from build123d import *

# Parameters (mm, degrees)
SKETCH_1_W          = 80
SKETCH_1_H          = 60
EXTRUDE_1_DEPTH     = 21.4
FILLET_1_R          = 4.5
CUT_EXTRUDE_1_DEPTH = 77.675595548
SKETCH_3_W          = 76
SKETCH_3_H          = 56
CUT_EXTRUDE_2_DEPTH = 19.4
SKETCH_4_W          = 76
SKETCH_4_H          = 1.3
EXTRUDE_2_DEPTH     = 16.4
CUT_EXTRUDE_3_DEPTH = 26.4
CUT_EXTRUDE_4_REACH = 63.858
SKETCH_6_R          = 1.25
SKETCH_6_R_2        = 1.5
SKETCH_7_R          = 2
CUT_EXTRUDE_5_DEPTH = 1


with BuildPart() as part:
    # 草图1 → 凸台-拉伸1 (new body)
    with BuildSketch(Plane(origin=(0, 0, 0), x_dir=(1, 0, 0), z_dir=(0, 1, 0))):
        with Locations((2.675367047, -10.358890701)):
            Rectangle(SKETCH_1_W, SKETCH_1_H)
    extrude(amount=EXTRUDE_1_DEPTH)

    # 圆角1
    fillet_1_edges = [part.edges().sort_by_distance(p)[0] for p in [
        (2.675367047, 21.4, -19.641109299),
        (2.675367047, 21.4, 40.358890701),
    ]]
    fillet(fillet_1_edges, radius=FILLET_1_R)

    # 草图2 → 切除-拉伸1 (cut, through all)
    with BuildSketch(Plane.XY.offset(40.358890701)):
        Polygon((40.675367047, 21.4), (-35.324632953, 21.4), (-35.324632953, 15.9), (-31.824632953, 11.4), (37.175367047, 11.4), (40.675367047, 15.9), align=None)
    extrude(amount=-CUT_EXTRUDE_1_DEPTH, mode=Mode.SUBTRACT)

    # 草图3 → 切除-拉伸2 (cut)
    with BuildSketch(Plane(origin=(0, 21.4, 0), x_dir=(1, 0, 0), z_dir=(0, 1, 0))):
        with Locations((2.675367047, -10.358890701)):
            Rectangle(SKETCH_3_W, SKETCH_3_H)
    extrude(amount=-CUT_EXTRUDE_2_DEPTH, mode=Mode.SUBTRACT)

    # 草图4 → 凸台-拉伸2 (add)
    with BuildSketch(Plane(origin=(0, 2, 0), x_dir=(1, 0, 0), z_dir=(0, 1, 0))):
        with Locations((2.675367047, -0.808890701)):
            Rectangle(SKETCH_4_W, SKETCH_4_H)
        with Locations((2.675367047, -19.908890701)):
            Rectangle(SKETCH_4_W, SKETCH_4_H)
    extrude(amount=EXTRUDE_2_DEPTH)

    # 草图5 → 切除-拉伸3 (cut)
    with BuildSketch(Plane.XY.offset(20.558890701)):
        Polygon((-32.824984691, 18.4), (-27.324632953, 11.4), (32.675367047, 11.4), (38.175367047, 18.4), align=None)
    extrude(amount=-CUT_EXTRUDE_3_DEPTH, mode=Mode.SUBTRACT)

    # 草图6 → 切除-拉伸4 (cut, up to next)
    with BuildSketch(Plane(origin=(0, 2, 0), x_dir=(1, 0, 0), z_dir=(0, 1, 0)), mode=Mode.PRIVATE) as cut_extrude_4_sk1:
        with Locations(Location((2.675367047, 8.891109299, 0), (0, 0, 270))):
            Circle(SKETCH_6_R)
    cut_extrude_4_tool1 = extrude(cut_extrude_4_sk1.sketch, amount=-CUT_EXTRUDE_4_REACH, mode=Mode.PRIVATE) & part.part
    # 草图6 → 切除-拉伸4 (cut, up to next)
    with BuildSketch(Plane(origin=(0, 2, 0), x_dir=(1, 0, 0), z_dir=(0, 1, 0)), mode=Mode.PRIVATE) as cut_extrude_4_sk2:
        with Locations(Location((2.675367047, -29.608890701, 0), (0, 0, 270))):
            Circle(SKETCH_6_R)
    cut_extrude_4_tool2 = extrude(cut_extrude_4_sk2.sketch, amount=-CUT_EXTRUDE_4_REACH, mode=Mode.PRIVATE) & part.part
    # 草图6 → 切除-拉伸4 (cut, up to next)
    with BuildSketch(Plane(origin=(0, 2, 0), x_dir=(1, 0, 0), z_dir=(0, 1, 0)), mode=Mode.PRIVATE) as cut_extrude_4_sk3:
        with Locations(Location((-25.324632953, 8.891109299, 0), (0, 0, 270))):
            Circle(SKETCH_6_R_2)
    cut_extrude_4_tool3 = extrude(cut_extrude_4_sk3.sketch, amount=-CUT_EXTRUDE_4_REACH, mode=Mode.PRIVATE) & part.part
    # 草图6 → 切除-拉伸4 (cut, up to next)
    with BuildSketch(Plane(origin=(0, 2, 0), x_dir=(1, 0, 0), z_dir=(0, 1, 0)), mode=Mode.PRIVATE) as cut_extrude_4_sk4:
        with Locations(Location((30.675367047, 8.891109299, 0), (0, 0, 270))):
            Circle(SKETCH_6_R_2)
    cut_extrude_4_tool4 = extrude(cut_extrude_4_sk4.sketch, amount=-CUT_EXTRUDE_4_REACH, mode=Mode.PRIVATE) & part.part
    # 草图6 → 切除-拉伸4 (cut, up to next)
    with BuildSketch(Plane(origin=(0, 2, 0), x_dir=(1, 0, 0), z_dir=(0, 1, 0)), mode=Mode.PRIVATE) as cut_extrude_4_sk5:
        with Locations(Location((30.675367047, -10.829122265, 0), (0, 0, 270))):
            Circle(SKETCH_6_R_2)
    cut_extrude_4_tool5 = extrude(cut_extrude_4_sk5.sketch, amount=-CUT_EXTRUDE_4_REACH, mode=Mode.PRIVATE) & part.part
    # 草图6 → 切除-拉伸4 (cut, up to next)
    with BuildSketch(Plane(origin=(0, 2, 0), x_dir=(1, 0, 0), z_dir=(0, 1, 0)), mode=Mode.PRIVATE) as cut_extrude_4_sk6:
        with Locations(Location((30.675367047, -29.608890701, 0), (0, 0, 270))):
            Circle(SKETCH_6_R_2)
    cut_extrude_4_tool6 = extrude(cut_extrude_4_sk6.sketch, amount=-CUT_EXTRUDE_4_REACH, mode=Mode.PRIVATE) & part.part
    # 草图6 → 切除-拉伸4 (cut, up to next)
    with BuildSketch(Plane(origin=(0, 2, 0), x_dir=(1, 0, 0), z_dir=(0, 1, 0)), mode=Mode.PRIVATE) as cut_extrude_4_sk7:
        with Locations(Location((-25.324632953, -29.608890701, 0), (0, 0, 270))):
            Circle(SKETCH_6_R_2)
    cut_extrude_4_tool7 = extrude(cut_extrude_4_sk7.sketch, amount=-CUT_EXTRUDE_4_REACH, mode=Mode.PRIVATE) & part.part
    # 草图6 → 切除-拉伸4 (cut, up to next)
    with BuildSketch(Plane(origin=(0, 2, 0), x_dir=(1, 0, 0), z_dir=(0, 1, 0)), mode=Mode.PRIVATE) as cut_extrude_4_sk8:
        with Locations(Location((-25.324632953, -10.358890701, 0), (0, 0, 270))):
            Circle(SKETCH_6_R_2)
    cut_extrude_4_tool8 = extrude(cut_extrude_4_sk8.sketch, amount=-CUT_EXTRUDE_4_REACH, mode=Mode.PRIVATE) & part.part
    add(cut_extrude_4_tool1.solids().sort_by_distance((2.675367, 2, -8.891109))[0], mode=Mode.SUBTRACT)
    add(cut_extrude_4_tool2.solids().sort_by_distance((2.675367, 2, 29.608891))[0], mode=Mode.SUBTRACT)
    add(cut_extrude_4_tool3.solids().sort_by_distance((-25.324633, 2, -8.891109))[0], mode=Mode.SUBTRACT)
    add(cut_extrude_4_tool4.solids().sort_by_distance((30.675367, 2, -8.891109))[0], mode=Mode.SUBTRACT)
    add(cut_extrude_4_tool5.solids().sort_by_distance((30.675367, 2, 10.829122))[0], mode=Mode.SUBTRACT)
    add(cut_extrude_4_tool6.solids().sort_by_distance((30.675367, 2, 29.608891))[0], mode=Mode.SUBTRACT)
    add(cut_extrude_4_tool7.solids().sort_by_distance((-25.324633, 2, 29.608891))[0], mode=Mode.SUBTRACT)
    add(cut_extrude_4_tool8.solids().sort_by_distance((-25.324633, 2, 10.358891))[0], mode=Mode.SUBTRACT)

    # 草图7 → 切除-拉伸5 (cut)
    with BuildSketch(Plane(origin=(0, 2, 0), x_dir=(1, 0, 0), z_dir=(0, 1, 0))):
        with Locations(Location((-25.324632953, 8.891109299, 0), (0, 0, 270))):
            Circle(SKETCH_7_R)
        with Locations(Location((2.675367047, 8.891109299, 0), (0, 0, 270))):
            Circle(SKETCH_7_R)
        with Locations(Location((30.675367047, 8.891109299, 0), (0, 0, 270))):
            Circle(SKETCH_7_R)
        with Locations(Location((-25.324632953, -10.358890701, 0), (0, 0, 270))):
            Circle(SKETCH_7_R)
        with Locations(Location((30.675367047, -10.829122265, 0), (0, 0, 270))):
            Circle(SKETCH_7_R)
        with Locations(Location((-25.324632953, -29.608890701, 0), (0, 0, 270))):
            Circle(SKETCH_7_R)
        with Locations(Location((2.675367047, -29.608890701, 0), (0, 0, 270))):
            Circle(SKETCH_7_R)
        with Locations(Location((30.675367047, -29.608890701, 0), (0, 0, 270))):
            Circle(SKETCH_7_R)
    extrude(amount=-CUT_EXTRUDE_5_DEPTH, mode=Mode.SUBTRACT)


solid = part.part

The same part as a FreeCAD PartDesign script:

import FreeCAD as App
import Part
import Sketcher
from FreeCAD import Vector
Q = App.Units.Quantity


def edges_at(feature, points):
    """Names of the edges that pass closest to the given points."""
    edges = feature.Shape.Edges
    near = lambda p: min(range(len(edges)), key=lambda i: edges[i].distToShape(Part.Vertex(*p))[0])
    return sorted({f"Edge{near(p) + 1}" for p in points})


def add_polygon(sketch, points):
    """Adds a closed chain of lines whose ends are joined by coincident constraints."""
    first, n = sketch.GeometryCount, len(points)
    for a, b in zip(points, points[1:] + points[:1]):
        sketch.addGeometry(Part.LineSegment(App.Vector(*a, 0), App.Vector(*b, 0)), False)
    for i in range(n):
        sketch.addConstraint(Sketcher.Constraint("Coincident", first + i, 2, first + (i + 1) % n, 1))

doc = App.newDocument("Part")
params = doc.addObject("Spreadsheet::Sheet", "Params")
for row, (alias, value) in enumerate([
    ("sketch1_width", "80 mm"),
    ("sketch1_height", "60 mm"),
    ("pad1_length", "21.4 mm"),
    ("fillet_radius", "4.5 mm"),
    ("sketch2_width", "76 mm"),
    ("sketch2_width2", "69 mm"),
    ("sketch2_height", "5.5 mm"),
    ("sketch3_width", "76 mm"),
    ("sketch3_height", "56 mm"),
    ("pocket2_length", "19.4 mm"),
    ("sketch4_width", "76 mm"),
    ("sketch4_height", "1.3 mm"),
    ("pad2_length", "16.4 mm"),
    ("sketch5_width", "60 mm"),
    ("pocket3_length", "26.4 mm"),
    ("sketch6_diameter", "2.5 mm"),
    ("sketch7_diameter", "2.5 mm"),
    ("sketch8_diameter", "3 mm"),
    ("sketch9_diameter", "3 mm"),
    ("sketch10_diameter", "3 mm"),
    ("sketch11_diameter", "3 mm"),
    ("sketch12_diameter", "3 mm"),
    ("sketch13_diameter", "3 mm"),
    ("sketch14_diameter", "4 mm"),
    ("pocket12_length", "1 mm"),
], start=1):
    params.set(f"A{row}", alias)
    params.set(f"B{row}", "=" + value)
    params.setAlias(f"B{row}", alias)

body = doc.addObject("PartDesign::Body", "Body")

sketch1 = doc.addObject("Sketcher::SketchObject", "Sketch")
body.addObject(sketch1)
sketch1.AttachmentSupport = (doc.XZ_Plane, [""])
sketch1.MapMode = "FlatFace"
add_polygon(sketch1, [(-37, -20), (-37, 40), (43, 40), (43, -20)])
sketch1.addConstraint(Sketcher.Constraint("Vertical", 0))
sketch1.addConstraint(Sketcher.Constraint("Horizontal", 1))
sketch1.addConstraint(Sketcher.Constraint("Vertical", 2))
sketch1.addConstraint(Sketcher.Constraint("Horizontal", 3))
sketch1.addConstraint(Sketcher.Constraint("DistanceX", 1, 1, 1, 2, Q("80 mm")))
sketch1.addConstraint(Sketcher.Constraint("DistanceY", 0, 1, 0, 2, Q("60 mm")))
sketch1.addConstraint(Sketcher.Constraint("DistanceY", -1, 1, 0, 2, Q("40.358891 mm")))
sketch1.addConstraint(Sketcher.Constraint("DistanceX", 0, 2, -1, 1, Q("37.324633 mm")))
sketch1.setExpression("Constraints[8]", "Params.sketch1_width")
sketch1.setExpression("Constraints[9]", "Params.sketch1_height")
pad1 = doc.addObject("PartDesign::Pad", "Pad")
body.addObject(pad1)
pad1.Profile = sketch1
pad1.setExpression("Length", "Params.pad1_length")
pad1.Reversed = True
doc.recompute()

fillet = doc.addObject("PartDesign::Fillet", "Fillet")
body.addObject(fillet)
fillet.Base = (pad1, edges_at(pad1, [(2.675, 21.4, -19.641), (2.675, 21.4, 40.359)]))
fillet.setExpression("Radius", "Params.fillet_radius")

sketch2 = doc.addObject("Sketcher::SketchObject", "Sketch001")
body.addObject(sketch2)
sketch2.AttachmentSupport = (doc.XY_Plane, [""])
sketch2.MapMode = "FlatFace"
sketch2.AttachmentOffset = App.Placement(Vector(0, 0, 40.358891), App.Rotation())
add_polygon(sketch2, [(41, 21), (-35, 21), (-35, 16), (-32, 11), (37, 11), (41, 16)])
sketch2.addConstraint(Sketcher.Constraint("Horizontal", 0))
sketch2.addConstraint(Sketcher.Constraint("Vertical", 1))
sketch2.addConstraint(Sketcher.Constraint("Horizontal", 3))
sketch2.addConstraint(Sketcher.Constraint("Vertical", 5))
sketch2.addConstraint(Sketcher.Constraint("Horizontal", 1, 2, 4, 2))
sketch2.addConstraint(Sketcher.Constraint("Equal", 2, 4))
sketch2.addConstraint(Sketcher.Constraint("DistanceX", 0, 2, 0, 1, Q("76 mm")))
sketch2.addConstraint(Sketcher.Constraint("DistanceX", 3, 1, 3, 2, Q("69 mm")))
sketch2.addConstraint(Sketcher.Constraint("DistanceY", 1, 2, 1, 1, Q("5.5 mm")))
sketch2.addConstraint(Sketcher.Constraint("DistanceY", 2, 2, 0, 2, Q("10 mm")))
sketch2.addConstraint(Sketcher.Constraint("DistanceY", -1, 1, 0, 2, Q("21.4 mm")))
sketch2.addConstraint(Sketcher.Constraint("DistanceX", 0, 2, -1, 1, Q("35.324633 mm")))
sketch2.setExpression("Constraints[12]", "Params.sketch2_width")
sketch2.setExpression("Constraints[13]", "Params.sketch2_width2")
sketch2.setExpression("Constraints[14]", "Params.sketch2_height")
pocket1 = doc.addObject("PartDesign::Pocket", "Pocket")
body.addObject(pocket1)
pocket1.Profile = sketch2
pocket1.Type = "ThroughAll"

sketch3 = doc.addObject("Sketcher::SketchObject", "Sketch002")
body.addObject(sketch3)
sketch3.AttachmentSupport = (doc.XZ_Plane, [""])
sketch3.MapMode = "FlatFace"
sketch3.AttachmentOffset = App.Placement(Vector(0, 0, -21.4), App.Rotation())
add_polygon(sketch3, [(-35, -18), (-35, 38), (41, 38), (41, -18)])
sketch3.addConstraint(Sketcher.Constraint("Vertical", 0))
sketch3.addConstraint(Sketcher.Constraint("Horizontal", 1))
sketch3.addConstraint(Sketcher.Constraint("Vertical", 2))
sketch3.addConstraint(Sketcher.Constraint("Horizontal", 3))
sketch3.addConstraint(Sketcher.Constraint("DistanceX", 1, 1, 1, 2, Q("76 mm")))
sketch3.addConstraint(Sketcher.Constraint("DistanceY", 0, 1, 0, 2, Q("56 mm")))
sketch3.addConstraint(Sketcher.Constraint("DistanceY", -1, 1, 0, 2, Q("38.358891 mm")))
sketch3.addConstraint(Sketcher.Constraint("DistanceX", 0, 2, -1, 1, Q("35.324633 mm")))
sketch3.setExpression("Constraints[8]", "Params.sketch3_width")
sketch3.setExpression("Constraints[9]", "Params.sketch3_height")
pocket2 = doc.addObject("PartDesign::Pocket", "Pocket001")
body.addObject(pocket2)
pocket2.Profile = sketch3
pocket2.setExpression("Length", "Params.pocket2_length")
pocket2.Reversed = True

sketch4 = doc.addObject("Sketcher::SketchObject", "Sketch003")
body.addObject(sketch4)
sketch4.AttachmentSupport = (doc.XZ_Plane, [""])
sketch4.MapMode = "FlatFace"
sketch4.AttachmentOffset = App.Placement(Vector(0, 0, -2), App.Rotation())
add_polygon(sketch4, [(-35.3, 0.2), (-35.3, 1.5), (40.7, 1.5), (40.7, 0.2)])
add_polygon(sketch4, [(-35.3, 19.3), (-35.3, 20.6), (40.7, 20.6), (40.7, 19.3)])
sketch4.addConstraint(Sketcher.Constraint("Vertical", 0))
sketch4.addConstraint(Sketcher.Constraint("Horizontal", 1))
sketch4.addConstraint(Sketcher.Constraint("Vertical", 2))
sketch4.addConstraint(Sketcher.Constraint("Horizontal", 3))
sketch4.addConstraint(Sketcher.Constraint("Vertical", 4))
sketch4.addConstraint(Sketcher.Constraint("Horizontal", 5))
sketch4.addConstraint(Sketcher.Constraint("Vertical", 6))
sketch4.addConstraint(Sketcher.Constraint("Horizontal", 7))
sketch4.addConstraint(Sketcher.Constraint("Vertical", 3, 2, 4, 2))
sketch4.addConstraint(Sketcher.Constraint("Vertical", 2, 2, 5, 2))
sketch4.addConstraint(Sketcher.Constraint("Equal", 2, 4))
sketch4.addConstraint(Sketcher.Constraint("DistanceX", 1, 1, 1, 2, Q("76 mm")))
sketch4.addConstraint(Sketcher.Constraint("DistanceY", 0, 1, 0, 2, Q("1.3 mm")))
sketch4.addConstraint(Sketcher.Constraint("DistanceY", 0, 2, 4, 2, Q("19.1 mm")))
sketch4.addConstraint(Sketcher.Constraint("DistanceY", -1, 1, 0, 2, Q("1.458891 mm")))
sketch4.addConstraint(Sketcher.Constraint("DistanceX", 0, 2, -1, 1, Q("35.324633 mm")))
sketch4.setExpression("Constraints[19]", "Params.sketch4_width")
sketch4.setExpression("Constraints[20]", "Params.sketch4_height")
pad2 = doc.addObject("PartDesign::Pad", "Pad001")
body.addObject(pad2)
pad2.Profile = sketch4
pad2.setExpression("Length", "Params.pad2_length")
pad2.Reversed = True

sketch5 = doc.addObject("Sketcher::SketchObject", "Sketch004")
body.addObject(sketch5)
sketch5.AttachmentSupport = (doc.XY_Plane, [""])
sketch5.MapMode = "FlatFace"
sketch5.AttachmentOffset = App.Placement(Vector(0, 0, 20.558891), App.Rotation())
add_polygon(sketch5, [(-33, 18), (-27, 11), (33, 11), (38, 18)])
sketch5.addConstraint(Sketcher.Constraint("Horizontal", 1))
sketch5.addConstraint(Sketcher.Constraint("Horizontal", 3))
sketch5.addConstraint(Sketcher.Constraint("DistanceX", 1, 1, 1, 2, Q("60 mm")))
sketch5.addConstraint(Sketcher.Constraint("DistanceY", 1, 2, 2, 2, Q("7 mm")))
sketch5.addConstraint(Sketcher.Constraint("DistanceY", -1, 1, 0, 2, Q("11.4 mm")))
sketch5.addConstraint(Sketcher.Constraint("DistanceX", 1, 2, 2, 2, Q("5.5 mm")))
sketch5.addConstraint(Sketcher.Constraint("DistanceX", 3, 2, 3, 1, Q("71.000352 mm")))
sketch5.addConstraint(Sketcher.Constraint("DistanceX", 0, 2, -1, 1, Q("27.324633 mm")))
sketch5.setExpression("Constraints[6]", "Params.sketch5_width")
pocket3 = doc.addObject("PartDesign::Pocket", "Pocket002")
body.addObject(pocket3)
pocket3.Profile = sketch5
pocket3.setExpression("Length", "Params.pocket3_length")

sketch6 = doc.addObject("Sketcher::SketchObject", "Sketch005")
body.addObject(sketch6)
sketch6.AttachmentSupport = (doc.XZ_Plane, [""])
sketch6.MapMode = "FlatFace"
sketch6.AttachmentOffset = App.Placement(Vector(0, 0, -2), App.Rotation())
sketch6.addGeometry(Part.Circle(Vector(2.7, -8.9, 0), Vector(0, 0, 1), 1.2), False)
sketch6.addConstraint(Sketcher.Constraint("Diameter", 0, Q("2.5 mm")))
sketch6.addConstraint(Sketcher.Constraint("DistanceY", 0, 3, -1, 1, Q("8.891109 mm")))
sketch6.addConstraint(Sketcher.Constraint("DistanceX", -1, 1, 0, 3, Q("2.675367 mm")))
sketch6.setExpression("Constraints[0]", "Params.sketch6_diameter")
pocket4 = doc.addObject("PartDesign::Pocket", "Pocket003")
body.addObject(pocket4)
pocket4.Profile = sketch6
pocket4.Type = "UpToFirst"
pocket4.Reversed = True

sketch7 = doc.addObject("Sketcher::SketchObject", "Sketch006")
body.addObject(sketch7)
sketch7.AttachmentSupport = (doc.XZ_Plane, [""])
sketch7.MapMode = "FlatFace"
sketch7.AttachmentOffset = App.Placement(Vector(0, 0, -2), App.Rotation())
sketch7.addGeometry(Part.Circle(Vector(2.7, 29.6, 0), Vector(0, 0, 1), 1.2), False)
sketch7.addConstraint(Sketcher.Constraint("Diameter", 0, Q("2.5 mm")))
sketch7.addConstraint(Sketcher.Constraint("DistanceY", -1, 1, 0, 3, Q("29.608891 mm")))
sketch7.addConstraint(Sketcher.Constraint("DistanceX", -1, 1, 0, 3, Q("2.675367 mm")))
sketch7.setExpression("Constraints[0]", "Params.sketch7_diameter")
pocket5 = doc.addObject("PartDesign::Pocket", "Pocket004")
body.addObject(pocket5)
pocket5.Profile = sketch7
pocket5.Type = "UpToFirst"
pocket5.Reversed = True

sketch8 = doc.addObject("Sketcher::SketchObject", "Sketch007")
body.addObject(sketch8)
sketch8.AttachmentSupport = (doc.XZ_Plane, [""])
sketch8.MapMode = "FlatFace"
sketch8.AttachmentOffset = App.Placement(Vector(0, 0, -2), App.Rotation())
sketch8.addGeometry(Part.Circle(Vector(-25.3, -8.9, 0), Vector(0, 0, 1), 1.5), False)
sketch8.addConstraint(Sketcher.Constraint("Diameter", 0, Q("3 mm")))
sketch8.addConstraint(Sketcher.Constraint("DistanceY", 0, 3, -1, 1, Q("8.891109 mm")))
sketch8.addConstraint(Sketcher.Constraint("DistanceX", 0, 3, -1, 1, Q("25.324633 mm")))
sketch8.setExpression("Constraints[0]", "Params.sketch8_diameter")
pocket6 = doc.addObject("PartDesign::Pocket", "Pocket005")
body.addObject(pocket6)
pocket6.Profile = sketch8
pocket6.Type = "UpToFirst"
pocket6.Reversed = True

sketch9 = doc.addObject("Sketcher::SketchObject", "Sketch008")
body.addObject(sketch9)
sketch9.AttachmentSupport = (doc.XZ_Plane, [""])
sketch9.MapMode = "FlatFace"
sketch9.AttachmentOffset = App.Placement(Vector(0, 0, -2), App.Rotation())
sketch9.addGeometry(Part.Circle(Vector(30.7, -8.9, 0), Vector(0, 0, 1), 1.5), False)
sketch9.addConstraint(Sketcher.Constraint("Diameter", 0, Q("3 mm")))
sketch9.addConstraint(Sketcher.Constraint("DistanceY", 0, 3, -1, 1, Q("8.891109 mm")))
sketch9.addConstraint(Sketcher.Constraint("DistanceX", -1, 1, 0, 3, Q("30.675367 mm")))
sketch9.setExpression("Constraints[0]", "Params.sketch9_diameter")
pocket7 = doc.addObject("PartDesign::Pocket", "Pocket006")
body.addObject(pocket7)
pocket7.Profile = sketch9
pocket7.Type = "UpToFirst"
pocket7.Reversed = True

sketch10 = doc.addObject("Sketcher::SketchObject", "Sketch009")
body.addObject(sketch10)
sketch10.AttachmentSupport = (doc.XZ_Plane, [""])
sketch10.MapMode = "FlatFace"
sketch10.AttachmentOffset = App.Placement(Vector(0, 0, -2), App.Rotation())
sketch10.addGeometry(Part.Circle(Vector(30.7, 10.8, 0), Vector(0, 0, 1), 1.5), False)
sketch10.addConstraint(Sketcher.Constraint("Diameter", 0, Q("3 mm")))
sketch10.addConstraint(Sketcher.Constraint("DistanceX", -1, 1, 0, 3, Q("30.675367 mm")))
sketch10.addConstraint(Sketcher.Constraint("DistanceY", -1, 1, 0, 3, Q("10.829122 mm")))
sketch10.setExpression("Constraints[0]", "Params.sketch10_diameter")
pocket8 = doc.addObject("PartDesign::Pocket", "Pocket007")
body.addObject(pocket8)
pocket8.Profile = sketch10
pocket8.Type = "UpToFirst"
pocket8.Reversed = True

sketch11 = doc.addObject("Sketcher::SketchObject", "Sketch010")
body.addObject(sketch11)
sketch11.AttachmentSupport = (doc.XZ_Plane, [""])
sketch11.MapMode = "FlatFace"
sketch11.AttachmentOffset = App.Placement(Vector(0, 0, -2), App.Rotation())
sketch11.addGeometry(Part.Circle(Vector(30.7, 29.6, 0), Vector(0, 0, 1), 1.5), False)
sketch11.addConstraint(Sketcher.Constraint("Diameter", 0, Q("3 mm")))
sketch11.addConstraint(Sketcher.Constraint("DistanceY", -1, 1, 0, 3, Q("29.608891 mm")))
sketch11.addConstraint(Sketcher.Constraint("DistanceX", -1, 1, 0, 3, Q("30.675367 mm")))
sketch11.setExpression("Constraints[0]", "Params.sketch11_diameter")
pocket9 = doc.addObject("PartDesign::Pocket", "Pocket008")
body.addObject(pocket9)
pocket9.Profile = sketch11
pocket9.Type = "UpToFirst"
pocket9.Reversed = True

sketch12 = doc.addObject("Sketcher::SketchObject", "Sketch011")
body.addObject(sketch12)
sketch12.AttachmentSupport = (doc.XZ_Plane, [""])
sketch12.MapMode = "FlatFace"
sketch12.AttachmentOffset = App.Placement(Vector(0, 0, -2), App.Rotation())
sketch12.addGeometry(Part.Circle(Vector(-25.3, 29.6, 0), Vector(0, 0, 1), 1.5), False)
sketch12.addConstraint(Sketcher.Constraint("Diameter", 0, Q("3 mm")))
sketch12.addConstraint(Sketcher.Constraint("DistanceY", -1, 1, 0, 3, Q("29.608891 mm")))
sketch12.addConstraint(Sketcher.Constraint("DistanceX", 0, 3, -1, 1, Q("25.324633 mm")))
sketch12.setExpression("Constraints[0]", "Params.sketch12_diameter")
pocket10 = doc.addObject("PartDesign::Pocket", "Pocket009")
body.addObject(pocket10)
pocket10.Profile = sketch12
pocket10.Type = "UpToFirst"
pocket10.Reversed = True

sketch13 = doc.addObject("Sketcher::SketchObject", "Sketch012")
body.addObject(sketch13)
sketch13.AttachmentSupport = (doc.XZ_Plane, [""])
sketch13.MapMode = "FlatFace"
sketch13.AttachmentOffset = App.Placement(Vector(0, 0, -2), App.Rotation())
sketch13.addGeometry(Part.Circle(Vector(-25.3, 10.4, 0), Vector(0, 0, 1), 1.5), False)
sketch13.addConstraint(Sketcher.Constraint("Diameter", 0, Q("3 mm")))
sketch13.addConstraint(Sketcher.Constraint("DistanceY", -1, 1, 0, 3, Q("10.358891 mm")))
sketch13.addConstraint(Sketcher.Constraint("DistanceX", 0, 3, -1, 1, Q("25.324633 mm")))
sketch13.setExpression("Constraints[0]", "Params.sketch13_diameter")
pocket11 = doc.addObject("PartDesign::Pocket", "Pocket010")
body.addObject(pocket11)
pocket11.Profile = sketch13
pocket11.Type = "UpToFirst"
pocket11.Reversed = True

sketch14 = doc.addObject("Sketcher::SketchObject", "Sketch013")
body.addObject(sketch14)
sketch14.AttachmentSupport = (doc.XZ_Plane, [""])
sketch14.MapMode = "FlatFace"
sketch14.AttachmentOffset = App.Placement(Vector(0, 0, -2), App.Rotation())
sketch14.addGeometry(Part.Circle(Vector(-25.3, -8.9, 0), Vector(0, 0, 1), 2), False)
sketch14.addGeometry(Part.Circle(Vector(2.7, -8.9, 0), Vector(0, 0, 1), 2), False)
sketch14.addGeometry(Part.Circle(Vector(30.7, -8.9, 0), Vector(0, 0, 1), 2), False)
sketch14.addGeometry(Part.Circle(Vector(-25.3, 10.4, 0), Vector(0, 0, 1), 2), False)
sketch14.addGeometry(Part.Circle(Vector(30.7, 10.8, 0), Vector(0, 0, 1), 2), False)
sketch14.addGeometry(Part.Circle(Vector(-25.3, 29.6, 0), Vector(0, 0, 1), 2), False)
sketch14.addGeometry(Part.Circle(Vector(2.7, 29.6, 0), Vector(0, 0, 1), 2), False)
sketch14.addGeometry(Part.Circle(Vector(30.7, 29.6, 0), Vector(0, 0, 1), 2), False)
sketch14.addConstraint(Sketcher.Constraint("Equal", 0, 1))
sketch14.addConstraint(Sketcher.Constraint("Equal", 1, 2))
sketch14.addConstraint(Sketcher.Constraint("Equal", 2, 3))
sketch14.addConstraint(Sketcher.Constraint("Equal", 3, 4))
sketch14.addConstraint(Sketcher.Constraint("Equal", 4, 5))
sketch14.addConstraint(Sketcher.Constraint("Equal", 5, 6))
sketch14.addConstraint(Sketcher.Constraint("Equal", 6, 7))
sketch14.addConstraint(Sketcher.Constraint("Horizontal", 0, 3, 1, 3))
sketch14.addConstraint(Sketcher.Constraint("Horizontal", 1, 3, 2, 3))
sketch14.addConstraint(Sketcher.Constraint("Horizontal", 5, 3, 6, 3))
sketch14.addConstraint(Sketcher.Constraint("Horizontal", 6, 3, 7, 3))
sketch14.addConstraint(Sketcher.Constraint("Vertical", 0, 3, 3, 3))
sketch14.addConstraint(Sketcher.Constraint("Vertical", 2, 3, 4, 3))
sketch14.addConstraint(Sketcher.Constraint("Vertical", 3, 3, 5, 3))
sketch14.addConstraint(Sketcher.Constraint("Vertical", 1, 3, 6, 3))
sketch14.addConstraint(Sketcher.Constraint("Vertical", 4, 3, 7, 3))
sketch14.addConstraint(Sketcher.Constraint("Diameter", 0, Q("4 mm")))
sketch14.addConstraint(Sketcher.Constraint("DistanceX", 0, 3, 1, 3, Q("28 mm")))
sketch14.addConstraint(Sketcher.Constraint("DistanceX", 1, 3, 2, 3, Q("28 mm")))
sketch14.addConstraint(Sketcher.Constraint("DistanceY", 0, 3, 5, 3, Q("38.5 mm")))
sketch14.addConstraint(Sketcher.Constraint("DistanceY", 0, 3, 3, 3, Q("19.25 mm")))
sketch14.addConstraint(Sketcher.Constraint("DistanceY", 0, 3, -1, 1, Q("8.891109 mm")))
sketch14.addConstraint(Sketcher.Constraint("DistanceY", 2, 3, 4, 3, Q("19.720232 mm")))
sketch14.addConstraint(Sketcher.Constraint("DistanceX", 0, 3, -1, 1, Q("25.324633 mm")))
sketch14.setExpression("Constraints[16]", "Params.sketch14_diameter")
pocket12 = doc.addObject("PartDesign::Pocket", "Pocket011")
body.addObject(pocket12)
pocket12.Profile = sketch14
pocket12.setExpression("Length", "Params.pocket12_length")
pocket12.Reversed = True

doc.recompute()
